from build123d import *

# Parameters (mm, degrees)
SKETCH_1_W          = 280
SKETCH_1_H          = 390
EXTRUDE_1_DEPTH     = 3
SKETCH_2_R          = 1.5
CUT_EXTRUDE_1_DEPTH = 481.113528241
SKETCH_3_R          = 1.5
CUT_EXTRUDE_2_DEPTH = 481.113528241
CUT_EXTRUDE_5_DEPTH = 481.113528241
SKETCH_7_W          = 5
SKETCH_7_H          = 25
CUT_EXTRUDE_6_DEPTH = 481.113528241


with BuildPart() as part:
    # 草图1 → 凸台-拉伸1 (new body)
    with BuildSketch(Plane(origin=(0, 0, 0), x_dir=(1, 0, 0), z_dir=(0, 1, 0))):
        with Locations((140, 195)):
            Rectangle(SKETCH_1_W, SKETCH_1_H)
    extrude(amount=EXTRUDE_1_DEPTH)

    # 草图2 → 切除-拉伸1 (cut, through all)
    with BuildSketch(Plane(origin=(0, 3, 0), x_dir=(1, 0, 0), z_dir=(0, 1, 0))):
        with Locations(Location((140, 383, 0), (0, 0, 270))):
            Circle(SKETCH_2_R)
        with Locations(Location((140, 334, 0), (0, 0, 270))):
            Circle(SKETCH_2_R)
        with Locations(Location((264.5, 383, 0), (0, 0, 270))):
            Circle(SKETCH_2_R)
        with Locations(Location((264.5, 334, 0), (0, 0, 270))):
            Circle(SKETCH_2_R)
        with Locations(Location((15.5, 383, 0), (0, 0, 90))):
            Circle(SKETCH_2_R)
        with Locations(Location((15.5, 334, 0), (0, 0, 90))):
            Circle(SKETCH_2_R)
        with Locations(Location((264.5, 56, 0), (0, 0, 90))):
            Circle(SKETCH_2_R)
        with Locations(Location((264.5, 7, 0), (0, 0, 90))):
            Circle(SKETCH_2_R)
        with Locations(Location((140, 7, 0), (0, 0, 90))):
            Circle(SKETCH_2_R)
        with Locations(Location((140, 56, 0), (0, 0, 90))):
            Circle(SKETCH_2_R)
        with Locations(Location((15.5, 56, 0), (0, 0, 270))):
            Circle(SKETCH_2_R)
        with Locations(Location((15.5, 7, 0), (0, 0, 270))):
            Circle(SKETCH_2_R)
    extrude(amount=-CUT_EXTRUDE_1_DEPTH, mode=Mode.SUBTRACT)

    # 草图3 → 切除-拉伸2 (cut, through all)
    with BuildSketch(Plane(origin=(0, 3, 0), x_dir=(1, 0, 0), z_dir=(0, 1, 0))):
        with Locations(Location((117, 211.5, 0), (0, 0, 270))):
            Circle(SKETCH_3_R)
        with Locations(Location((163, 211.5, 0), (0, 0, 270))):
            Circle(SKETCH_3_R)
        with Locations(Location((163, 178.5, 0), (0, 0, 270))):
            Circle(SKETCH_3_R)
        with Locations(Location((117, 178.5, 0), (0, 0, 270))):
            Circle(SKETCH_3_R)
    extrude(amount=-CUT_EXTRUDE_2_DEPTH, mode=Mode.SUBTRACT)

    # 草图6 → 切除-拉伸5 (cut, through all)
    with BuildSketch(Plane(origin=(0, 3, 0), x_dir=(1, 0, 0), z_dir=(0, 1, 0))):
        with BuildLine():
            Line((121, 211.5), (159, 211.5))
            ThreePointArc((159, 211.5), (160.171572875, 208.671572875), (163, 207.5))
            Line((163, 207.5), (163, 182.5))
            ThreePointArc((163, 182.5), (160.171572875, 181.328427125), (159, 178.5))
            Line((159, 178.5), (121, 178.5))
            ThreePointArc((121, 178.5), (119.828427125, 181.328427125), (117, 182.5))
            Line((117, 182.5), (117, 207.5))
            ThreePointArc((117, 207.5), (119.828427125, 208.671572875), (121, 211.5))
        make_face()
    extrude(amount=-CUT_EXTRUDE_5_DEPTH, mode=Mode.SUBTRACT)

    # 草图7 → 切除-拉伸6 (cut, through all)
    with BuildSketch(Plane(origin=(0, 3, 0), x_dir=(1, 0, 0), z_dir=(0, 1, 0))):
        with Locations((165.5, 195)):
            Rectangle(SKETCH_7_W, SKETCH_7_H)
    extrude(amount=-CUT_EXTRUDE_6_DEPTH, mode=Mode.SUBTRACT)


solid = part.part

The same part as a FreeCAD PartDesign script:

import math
import FreeCAD as App
import Part
import Sketcher
from FreeCAD import Vector

doc = App.newDocument("Part")
body = doc.addObject("PartDesign::Body", "Body")

sketch1 = body.newObject("Sketcher::SketchObject", "Sketch")
sketch1.AttachmentSupport = (doc.getObject("XZ_Plane"), [""])
sketch1.MapMode = "FlatFace"
sketch1.addGeometry([
    Part.LineSegment(Vector(0, -390, 0), Vector(0, 0, 0)),
    Part.LineSegment(Vector(0, 0, 0), Vector(280, 0, 0)),
    Part.LineSegment(Vector(280, 0, 0), Vector(280, -390, 0)),
    Part.LineSegment(Vector(280, -390, 0), Vector(0, -390, 0)),
], False)
sketch1.addConstraint([
    Sketcher.Constraint("Coincident", 0, 2, 1, 1),
    Sketcher.Constraint("Coincident", 1, 2, 2, 1),
    Sketcher.Constraint("Coincident", 2, 2, 3, 1),
    Sketcher.Constraint("Coincident", 3, 2, 0, 1),
    Sketcher.Constraint("Vertical", 0),
    Sketcher.Constraint("Horizontal", 1),
    Sketcher.Constraint("Vertical", 2),
    Sketcher.Constraint("Horizontal", 3),
    Sketcher.Constraint("Coincident", 0, 2, -1, 1),
    Sketcher.Constraint("DistanceX", 1, 1, 1, 2, 280.0),
    Sketcher.Constraint("DistanceY", 0, 1, 0, 2, 390.0),
])
pad1 = body.newObject("PartDesign::Pad", "Pad")
pad1.Profile = sketch1
pad1.Length = 3
pad1.Reversed = True

sketch2 = body.newObject("Sketcher::SketchObject", "Sketch001")
sketch2.AttachmentSupport = (doc.getObject("XZ_Plane"), [""])
sketch2.MapMode = "FlatFace"
sketch2.AttachmentOffset = App.Placement(Vector(0, 0, -3), App.Rotation())
sketch2.addGeometry([
    Part.Circle(Vector(140, -383, 0), Vector(0, 0, 1), 1.5),
    Part.Circle(Vector(140, -334, 0), Vector(0, 0, 1), 1.5),
    Part.Circle(Vector(264.5, -383, 0), Vector(0, 0, 1), 1.5),
    Part.Circle(Vector(264.5, -334, 0), Vector(0, 0, 1), 1.5),
    Part.Circle(Vector(15.5, -383, 0), Vector(0, 0, 1), 1.5),
    Part.Circle(Vector(15.5, -334, 0), Vector(0, 0, 1), 1.5),
    Part.Circle(Vector(264.5, -56, 0), Vector(0, 0, 1), 1.5),
    Part.Circle(Vector(264.5, -7, 0), Vector(0, 0, 1), 1.5),
    Part.Circle(Vector(140, -7, 0), Vector(0, 0, 1), 1.5),
    Part.Circle(Vector(140, -56, 0), Vector(0, 0, 1), 1.5),
    Part.Circle(Vector(15.5, -56, 0), Vector(0, 0, 1), 1.5),
    Part.Circle(Vector(15.5, -7, 0), Vector(0, 0, 1), 1.5),
], False)
sketch2.addConstraint([
    Sketcher.Constraint("Equal", 0, 1),
    Sketcher.Constraint("Equal", 1, 2),
    Sketcher.Constraint("Equal", 2, 3),
    Sketcher.Constraint("Equal", 3, 4),
    Sketcher.Constraint("Equal", 4, 5),
    Sketcher.Constraint("Equal", 5, 6),
    Sketcher.Constraint("Equal", 6, 7),
    Sketcher.Constraint("Equal", 7, 8),
    Sketcher.Constraint("Equal", 8, 9),
    Sketcher.Constraint("Equal", 9, 10),
    Sketcher.Constraint("Equal", 10, 11),
    Sketcher.Constraint("Horizontal", 0, 3, 2, 3),
    Sketcher.Constraint("Horizontal", 1, 3, 3, 3),
    Sketcher.Constraint("Horizontal", 2, 3, 4, 3),
    Sketcher.Constraint("Horizontal", 3, 3, 5, 3),
    Sketcher.Constraint("Horizontal", 7, 3, 8, 3),
    Sketcher.Constraint("Horizontal", 6, 3, 9, 3),
    Sketcher.Constraint("Horizontal", 9, 3, 10, 3),
    Sketcher.Constraint("Horizontal", 8, 3, 11, 3),
    Sketcher.Constraint("Vertical", 0, 3, 1, 3),
    Sketcher.Constraint("Vertical", 2, 3, 3, 3),
    Sketcher.Constraint("Vertical", 4, 3, 5, 3),
    Sketcher.Constraint("Vertical", 3, 3, 6, 3),
    Sketcher.Constraint("Vertical", 6, 3, 7, 3),
    Sketcher.Constraint("Vertical", 1, 3, 8, 3),
    Sketcher.Constraint("Vertical", 8, 3, 9, 3),
    Sketcher.Constraint("Vertical", 5, 3, 10, 3),
    Sketcher.Constraint("Vertical", 10, 3, 11, 3),
    Sketcher.Constraint("Diameter", 0, 3.0),
    Sketcher.Constraint("DistanceX", -1, 1, 0, 3, 140.0),
    Sketcher.Constraint("DistanceY", 0, 3, -1, 1, 383.0),
    Sketcher.Constraint("DistanceY", 1, 3, -1, 1, 334.0),
    Sketcher.Constraint("DistanceY", 6, 3, -1, 1, 56.0),
    Sketcher.Constraint("DistanceY", 7, 3, -1, 1, 7.0),
    Sketcher.Constraint("DistanceX", 4, 3, 2, 3, 249.0),
    Sketcher.Constraint("DistanceX", -1, 1, 2, 3, 264.5),
])
pocket1 = body.newObject("PartDesign::Pocket", "Pocket")
pocket1.Profile = sketch2
pocket1.Type = "ThroughAll"
pocket1.Reversed = True

sketch3 = body.newObject("Sketcher::SketchObject", "Sketch002")
sketch3.AttachmentSupport = (doc.getObject("XZ_Plane"), [""])
sketch3.MapMode = "FlatFace"
sketch3.AttachmentOffset = App.Placement(Vector(0, 0, -3), App.Rotation())
sketch3.addGeometry([
    Part.Circle(Vector(117, -211.5, 0), Vector(0, 0, 1), 1.5),
    Part.Circle(Vector(163, -211.5, 0), Vector(0, 0, 1), 1.5),
    Part.Circle(Vector(163, -178.5, 0), Vector(0, 0, 1), 1.5),
    Part.Circle(Vector(117, -178.5, 0), Vector(0, 0, 1), 1.5),
], False)
sketch3.addConstraint([
    Sketcher.Constraint("Equal", 0, 1),
    Sketcher.Constraint("Equal", 1, 2),
    Sketcher.Constraint("Equal", 2, 3),
    Sketcher.Constraint("Horizontal", 0, 3, 1, 3),
    Sketcher.Constraint("Horizontal", 2, 3, 3, 3),
    Sketcher.Constraint("Vertical", 1, 3, 2, 3),
    Sketcher.Constraint("Vertical", 0, 3, 3, 3),
    Sketcher.Constraint("Diameter", 0, 3.0),
    Sketcher.Constraint("DistanceX", -1, 1, 0, 3, 117.0),
    Sketcher.Constraint("DistanceX", -1, 1, 1, 3, 163.0),
    Sketcher.Constraint("DistanceY", 1, 3, 2, 3, 33.0),
    Sketcher.Constraint("DistanceY", 0, 3, -1, 1, 211.5),
])
pocket2 = body.newObject("PartDesign::Pocket", "Pocket001")
pocket2.Profile = sketch3
pocket2.Type = "ThroughAll"
pocket2.Reversed = True

sketch4 = body.newObject("Sketcher::SketchObject", "Sketch003")
sketch4.AttachmentSupport = (doc.getObject("XZ_Plane"), [""])
sketch4.MapMode = "FlatFace"
sketch4.AttachmentOffset = App.Placement(Vector(0, 0, -3), App.Rotation())
sketch4.addGeometry([
    Part.LineSegment(Vector(159, -211.5, 0), Vector(121, -211.5, 0)),
    Part.ArcOfCircle(Part.Circle(Vector(117, -211.5, 0), Vector(0, 0, 1), 4), math.radians(0), math.radians(90)),
    Part.LineSegment(Vector(117, -207.5, 0), Vector(117, -182.5, 0)),
    Part.ArcOfCircle(Part.Circle(Vector(117, -178.5, 0), Vector(0, 0, 1), 4), math.radians(-90), math.radians(0)),
    Part.LineSegment(Vector(121, -178.5, 0), Vector(159, -178.5, 0)),
    Part.ArcOfCircle(Part.Circle(Vector(163, -178.5, 0), Vector(0, 0, 1), 4), math.radians(180), math.radians(270)),
    Part.LineSegment(Vector(163, -182.5, 0), Vector(163, -207.5, 0)),
    Part.ArcOfCircle(Part.Circle(Vector(163, -211.5, 0), Vector(0, 0, 1), 4), math.radians(90), math.radians(180)),
], False)
sketch4.addConstraint([
    Sketcher.Constraint("Coincident", 0, 2, 1, 1),
    Sketcher.Constraint("Coincident", 1, 2, 2, 1),
    Sketcher.Constraint("Coincident", 2, 2, 3, 1),
    Sketcher.Constraint("Coincident", 3, 2, 4, 1),
    Sketcher.Constraint("Coincident", 4, 2, 5, 1),
    Sketcher.Constraint("Coincident", 5, 2, 6, 1),
    Sketcher.Constraint("Coincident", 6, 2, 7, 1),
    Sketcher.Constraint("Coincident", 7, 2, 0, 1),
    Sketcher.Constraint("Horizontal", 0),
    Sketcher.Constraint("Vertical", 2),
    Sketcher.Constraint("Horizontal", 4),
    Sketcher.Constraint("Vertical", 6),
    Sketcher.Constraint("Equal", 1, 3),
    Sketcher.Constraint("Equal", 3, 5),
    Sketcher.Constraint("Equal", 5, 7),
    Sketcher.Constraint("Horizontal", 3, 3, 5, 3),
    Sketcher.Constraint("Horizontal", 1, 3, 7, 3),
    Sketcher.Constraint("Horizontal", 7, 3, 0, 2),
    Sketcher.Constraint("Horizontal", 5, 3, 3, 2),
    Sketcher.Constraint("Vertical", 1, 3, 3, 3),
    Sketcher.Constraint("Vertical", 5, 3, 7, 3),
    Sketcher.Constraint("Vertical", 3, 3, 1, 2),
    Sketcher.Constraint("Vertical", 7, 3, 5, 2),
    Sketcher.Constraint("Radius", 1, 4.0),
    Sketcher.Constraint("DistanceX", 0, 2, 0, 1, 38.0),
    Sketcher.Constraint("DistanceY", 2, 1, 2, 2, 25.0),
    Sketcher.Constraint("DistanceX", -1, 1, 1, 3, 117.0),
    Sketcher.Constraint("DistanceY", 1, 3, -1, 1, 211.5),
])
pocket3 = body.newObject("PartDesign::Pocket", "Pocket002")
pocket3.Profile = sketch4
pocket3.Type = "ThroughAll"
pocket3.Reversed = True

sketch5 = body.newObject("Sketcher::SketchObject", "Sketch004")
sketch5.AttachmentSupport = (doc.getObject("XZ_Plane"), [""])
sketch5.MapMode = "FlatFace"
sketch5.AttachmentOffset = App.Placement(Vector(0, 0, -3), App.Rotation())
sketch5.addGeometry([
    Part.LineSegment(Vector(163, -208, 0), Vector(163, -182, 0)),
    Part.LineSegment(Vector(163, -182, 0), Vector(168, -182, 0)),
    Part.LineSegment(Vector(168, -182, 0), Vector(168, -208, 0)),
    Part.LineSegment(Vector(168, -208, 0), Vector(163, -208, 0)),
], False)
sketch5.addConstraint([
    Sketcher.Constraint("Coincident", 0, 2, 1, 1),
    Sketcher.Constraint("Coincident", 1, 2, 2, 1),
    Sketcher.Constraint("Coincident", 2, 2, 3, 1),
    Sketcher.Constraint("Coincident", 3, 2, 0, 1),
    Sketcher.Constraint("Vertical", 0),
    Sketcher.Constraint("Horizontal", 1),
    Sketcher.Constraint("Vertical", 2),
    Sketcher.Constraint("Horizontal", 3),
    Sketcher.Constraint("DistanceX", 1, 1, 1, 2, 5.0),
    Sketcher.Constraint("DistanceY", 0, 1, 0, 2, 25.0),
    Sketcher.Constraint("DistanceX", -1, 1, 0, 2, 163.0),
    Sketcher.Constraint("DistanceY", 0, 2, -1, 1, 182.5),
])
pocket4 = body.newObject("PartDesign::Pocket", "Pocket003")
pocket4.Profile = sketch5
pocket4.Type = "ThroughAll"
pocket4.Reversed = True

doc.recompute()
